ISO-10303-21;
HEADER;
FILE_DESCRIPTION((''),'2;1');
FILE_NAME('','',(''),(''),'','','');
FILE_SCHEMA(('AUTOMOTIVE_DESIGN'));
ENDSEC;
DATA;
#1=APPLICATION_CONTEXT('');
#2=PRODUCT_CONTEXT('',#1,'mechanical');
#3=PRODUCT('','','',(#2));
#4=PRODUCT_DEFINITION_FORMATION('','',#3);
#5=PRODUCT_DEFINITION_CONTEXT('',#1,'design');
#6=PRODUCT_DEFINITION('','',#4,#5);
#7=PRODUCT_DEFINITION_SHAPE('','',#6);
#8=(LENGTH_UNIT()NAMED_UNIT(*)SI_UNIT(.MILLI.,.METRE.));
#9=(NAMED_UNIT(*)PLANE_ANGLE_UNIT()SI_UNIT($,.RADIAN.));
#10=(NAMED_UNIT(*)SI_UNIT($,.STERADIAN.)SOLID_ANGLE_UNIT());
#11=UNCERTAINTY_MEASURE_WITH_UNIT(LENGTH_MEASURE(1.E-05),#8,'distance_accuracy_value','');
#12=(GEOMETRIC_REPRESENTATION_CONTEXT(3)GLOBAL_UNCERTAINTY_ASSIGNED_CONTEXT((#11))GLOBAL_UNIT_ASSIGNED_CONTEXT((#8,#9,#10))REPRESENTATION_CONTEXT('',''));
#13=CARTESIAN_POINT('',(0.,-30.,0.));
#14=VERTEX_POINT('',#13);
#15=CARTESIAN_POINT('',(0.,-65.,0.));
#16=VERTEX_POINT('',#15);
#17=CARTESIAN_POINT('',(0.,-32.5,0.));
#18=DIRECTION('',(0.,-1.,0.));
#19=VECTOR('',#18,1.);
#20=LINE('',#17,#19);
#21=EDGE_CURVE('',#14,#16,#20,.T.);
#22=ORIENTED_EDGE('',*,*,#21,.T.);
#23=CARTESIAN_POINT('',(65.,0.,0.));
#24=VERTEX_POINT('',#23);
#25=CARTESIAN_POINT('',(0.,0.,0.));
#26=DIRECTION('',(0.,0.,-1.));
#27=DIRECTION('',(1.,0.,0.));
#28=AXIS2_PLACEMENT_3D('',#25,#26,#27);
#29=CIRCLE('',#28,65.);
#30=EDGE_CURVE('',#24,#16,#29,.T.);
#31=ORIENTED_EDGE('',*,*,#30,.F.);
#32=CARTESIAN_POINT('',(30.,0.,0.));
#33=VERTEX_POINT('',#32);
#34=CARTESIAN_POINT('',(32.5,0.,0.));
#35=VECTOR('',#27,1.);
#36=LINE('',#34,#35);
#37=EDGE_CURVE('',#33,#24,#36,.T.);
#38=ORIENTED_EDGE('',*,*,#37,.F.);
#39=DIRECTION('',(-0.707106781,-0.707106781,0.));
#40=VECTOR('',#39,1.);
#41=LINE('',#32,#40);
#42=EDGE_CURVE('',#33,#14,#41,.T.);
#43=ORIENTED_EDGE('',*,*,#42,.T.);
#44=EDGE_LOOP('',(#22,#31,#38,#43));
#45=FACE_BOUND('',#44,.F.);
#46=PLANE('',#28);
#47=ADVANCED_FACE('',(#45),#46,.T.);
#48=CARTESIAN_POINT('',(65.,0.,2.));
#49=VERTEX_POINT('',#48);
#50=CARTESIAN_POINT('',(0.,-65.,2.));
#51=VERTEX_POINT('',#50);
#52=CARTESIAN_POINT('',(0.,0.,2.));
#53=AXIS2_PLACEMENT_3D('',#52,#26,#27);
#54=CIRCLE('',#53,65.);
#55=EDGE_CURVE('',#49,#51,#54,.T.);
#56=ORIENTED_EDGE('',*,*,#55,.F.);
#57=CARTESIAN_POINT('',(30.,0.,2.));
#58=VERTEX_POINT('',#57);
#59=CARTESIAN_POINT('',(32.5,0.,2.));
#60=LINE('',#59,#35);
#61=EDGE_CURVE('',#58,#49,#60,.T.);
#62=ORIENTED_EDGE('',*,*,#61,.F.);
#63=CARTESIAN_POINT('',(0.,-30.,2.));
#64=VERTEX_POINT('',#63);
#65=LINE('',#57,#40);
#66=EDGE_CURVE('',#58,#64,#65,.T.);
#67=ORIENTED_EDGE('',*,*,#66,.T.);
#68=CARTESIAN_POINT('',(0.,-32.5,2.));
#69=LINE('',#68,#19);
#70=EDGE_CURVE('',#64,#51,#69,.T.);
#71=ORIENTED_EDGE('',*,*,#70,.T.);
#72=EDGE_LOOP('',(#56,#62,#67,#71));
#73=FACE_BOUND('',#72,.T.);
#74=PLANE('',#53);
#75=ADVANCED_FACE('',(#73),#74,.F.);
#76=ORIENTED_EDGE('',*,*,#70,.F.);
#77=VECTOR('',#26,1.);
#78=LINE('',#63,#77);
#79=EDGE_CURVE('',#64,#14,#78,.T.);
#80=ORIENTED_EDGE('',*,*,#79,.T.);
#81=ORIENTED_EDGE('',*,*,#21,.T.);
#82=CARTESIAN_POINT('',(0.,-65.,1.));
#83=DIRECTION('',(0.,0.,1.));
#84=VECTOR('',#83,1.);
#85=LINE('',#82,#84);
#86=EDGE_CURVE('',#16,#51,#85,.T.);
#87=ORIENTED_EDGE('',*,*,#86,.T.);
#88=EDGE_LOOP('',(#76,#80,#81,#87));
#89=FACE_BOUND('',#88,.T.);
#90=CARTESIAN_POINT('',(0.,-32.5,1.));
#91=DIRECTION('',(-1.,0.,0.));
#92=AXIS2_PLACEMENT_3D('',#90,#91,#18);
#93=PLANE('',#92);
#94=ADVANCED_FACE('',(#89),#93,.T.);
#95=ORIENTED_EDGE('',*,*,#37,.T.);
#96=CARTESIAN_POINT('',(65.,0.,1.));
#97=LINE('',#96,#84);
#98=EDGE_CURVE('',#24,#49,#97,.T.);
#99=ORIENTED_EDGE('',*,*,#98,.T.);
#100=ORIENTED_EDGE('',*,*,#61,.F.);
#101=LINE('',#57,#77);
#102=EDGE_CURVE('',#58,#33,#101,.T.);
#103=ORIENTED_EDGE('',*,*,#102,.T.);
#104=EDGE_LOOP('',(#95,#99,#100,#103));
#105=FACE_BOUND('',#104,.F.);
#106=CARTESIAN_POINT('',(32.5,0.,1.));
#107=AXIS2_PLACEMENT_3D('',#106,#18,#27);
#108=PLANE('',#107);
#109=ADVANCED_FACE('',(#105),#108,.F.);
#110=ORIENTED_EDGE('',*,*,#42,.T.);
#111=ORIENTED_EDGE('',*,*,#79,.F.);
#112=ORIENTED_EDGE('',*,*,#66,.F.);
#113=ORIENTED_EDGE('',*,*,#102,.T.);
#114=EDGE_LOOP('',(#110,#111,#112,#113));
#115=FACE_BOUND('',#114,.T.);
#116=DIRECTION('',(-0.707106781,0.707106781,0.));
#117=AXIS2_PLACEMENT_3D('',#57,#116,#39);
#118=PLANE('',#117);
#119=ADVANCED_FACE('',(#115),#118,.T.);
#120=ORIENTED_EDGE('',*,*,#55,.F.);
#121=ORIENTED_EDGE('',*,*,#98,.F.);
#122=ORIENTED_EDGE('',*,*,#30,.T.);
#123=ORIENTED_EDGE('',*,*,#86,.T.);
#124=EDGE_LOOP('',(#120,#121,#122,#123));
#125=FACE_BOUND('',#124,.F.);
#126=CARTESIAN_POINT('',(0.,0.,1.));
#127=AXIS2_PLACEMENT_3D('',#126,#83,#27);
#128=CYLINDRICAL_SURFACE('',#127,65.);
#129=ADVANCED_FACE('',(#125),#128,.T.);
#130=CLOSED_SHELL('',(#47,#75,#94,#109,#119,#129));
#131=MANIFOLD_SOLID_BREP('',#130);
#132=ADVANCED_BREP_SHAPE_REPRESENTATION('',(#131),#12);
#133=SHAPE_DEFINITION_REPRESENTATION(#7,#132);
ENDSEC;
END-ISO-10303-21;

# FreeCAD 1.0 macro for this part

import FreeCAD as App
import Part
import Sketcher

V = App.Vector
Q = App.Units.Quantity

doc = App.newDocument("Part")
body = doc.addObject("PartDesign::Body", "Body")

sketch1 = doc.addObject("Sketcher::SketchObject", "Sketch")
body.addObject(sketch1)
sketch1.AttachmentSupport = (doc.XZ_Plane, [""])
sketch1.MapMode = "FlatFace"
sketch1.addGeometry([
    Part.LineSegment(V(0, 2, 0), V(0, 0, 0)),
    Part.LineSegment(V(0, 0, 0), V(65, 0, 0)),
    Part.LineSegment(V(65, 0, 0), V(65, 2, 0)),
    Part.LineSegment(V(65, 2, 0), V(0, 2, 0)),
], False)
sketch1.addConstraint([
    Sketcher.Constraint("Coincident", 0, 2, 1, 1),
    Sketcher.Constraint("Coincident", 1, 2, 2, 1),
    Sketcher.Constraint("Coincident", 2, 2, 3, 1),
    Sketcher.Constraint("Coincident", 3, 2, 0, 1),
    Sketcher.Constraint("Vertical", 0),
    Sketcher.Constraint("Horizontal", 1),
    Sketcher.Constraint("Vertical", 2),
    Sketcher.Constraint("Horizontal", 3),
    Sketcher.Constraint("Coincident", 0, 2, -1, 1),
    Sketcher.Constraint("DistanceX", 1, 1, 1, 2, Q("65 mm")),
    Sketcher.Constraint("DistanceY", 0, 2, 0, 1, Q("2 mm")),
])
revolution = doc.addObject("PartDesign::Revolution", "Revolution")
body.addObject(revolution)
revolution.Profile = sketch1
revolution.ReferenceAxis = (sketch1, ["V_Axis"])
revolution.Angle = 90
revolution.Reversed = True

sketch2 = doc.addObject("Sketcher::SketchObject", "Sketch001")
body.addObject(sketch2)
sketch2.AttachmentSupport = (doc.XY_Plane, [""])
sketch2.MapMode = "FlatFace"
sketch2.AttachmentOffset = App.Placement(V(0, 0, 2), App.Rotation())
sketch2.addGeometry([
    Part.LineSegment(V(30, 0, 0), V(0, 0, 0)),
    Part.LineSegment(V(0, 0, 0), V(0, -30, 0)),
    Part.LineSegment(V(0, -30, 0), V(30, 0, 0)),
], False)
sketch2.addConstraint([
    Sketcher.Constraint("Coincident", 0, 2, 1, 1),
    Sketcher.Constraint("Coincident", 1, 2, 2, 1),
    Sketcher.Constraint("Coincident", 2, 2, 0, 1),
    Sketcher.Constraint("Horizontal", 0),
    Sketcher.Constraint("Vertical", 1),
    Sketcher.Constraint("Coincident", 0, 2, -1, 1),
    Sketcher.Constraint("Equal", 0, 1),
    Sketcher.Constraint("DistanceX", 0, 2, 0, 1, Q("30 mm")),
])
pocket1 = doc.addObject("PartDesign::Pocket", "Pocket")
body.addObject(pocket1)
pocket1.Profile = sketch2
pocket1.Length = 2

doc.recompute()
